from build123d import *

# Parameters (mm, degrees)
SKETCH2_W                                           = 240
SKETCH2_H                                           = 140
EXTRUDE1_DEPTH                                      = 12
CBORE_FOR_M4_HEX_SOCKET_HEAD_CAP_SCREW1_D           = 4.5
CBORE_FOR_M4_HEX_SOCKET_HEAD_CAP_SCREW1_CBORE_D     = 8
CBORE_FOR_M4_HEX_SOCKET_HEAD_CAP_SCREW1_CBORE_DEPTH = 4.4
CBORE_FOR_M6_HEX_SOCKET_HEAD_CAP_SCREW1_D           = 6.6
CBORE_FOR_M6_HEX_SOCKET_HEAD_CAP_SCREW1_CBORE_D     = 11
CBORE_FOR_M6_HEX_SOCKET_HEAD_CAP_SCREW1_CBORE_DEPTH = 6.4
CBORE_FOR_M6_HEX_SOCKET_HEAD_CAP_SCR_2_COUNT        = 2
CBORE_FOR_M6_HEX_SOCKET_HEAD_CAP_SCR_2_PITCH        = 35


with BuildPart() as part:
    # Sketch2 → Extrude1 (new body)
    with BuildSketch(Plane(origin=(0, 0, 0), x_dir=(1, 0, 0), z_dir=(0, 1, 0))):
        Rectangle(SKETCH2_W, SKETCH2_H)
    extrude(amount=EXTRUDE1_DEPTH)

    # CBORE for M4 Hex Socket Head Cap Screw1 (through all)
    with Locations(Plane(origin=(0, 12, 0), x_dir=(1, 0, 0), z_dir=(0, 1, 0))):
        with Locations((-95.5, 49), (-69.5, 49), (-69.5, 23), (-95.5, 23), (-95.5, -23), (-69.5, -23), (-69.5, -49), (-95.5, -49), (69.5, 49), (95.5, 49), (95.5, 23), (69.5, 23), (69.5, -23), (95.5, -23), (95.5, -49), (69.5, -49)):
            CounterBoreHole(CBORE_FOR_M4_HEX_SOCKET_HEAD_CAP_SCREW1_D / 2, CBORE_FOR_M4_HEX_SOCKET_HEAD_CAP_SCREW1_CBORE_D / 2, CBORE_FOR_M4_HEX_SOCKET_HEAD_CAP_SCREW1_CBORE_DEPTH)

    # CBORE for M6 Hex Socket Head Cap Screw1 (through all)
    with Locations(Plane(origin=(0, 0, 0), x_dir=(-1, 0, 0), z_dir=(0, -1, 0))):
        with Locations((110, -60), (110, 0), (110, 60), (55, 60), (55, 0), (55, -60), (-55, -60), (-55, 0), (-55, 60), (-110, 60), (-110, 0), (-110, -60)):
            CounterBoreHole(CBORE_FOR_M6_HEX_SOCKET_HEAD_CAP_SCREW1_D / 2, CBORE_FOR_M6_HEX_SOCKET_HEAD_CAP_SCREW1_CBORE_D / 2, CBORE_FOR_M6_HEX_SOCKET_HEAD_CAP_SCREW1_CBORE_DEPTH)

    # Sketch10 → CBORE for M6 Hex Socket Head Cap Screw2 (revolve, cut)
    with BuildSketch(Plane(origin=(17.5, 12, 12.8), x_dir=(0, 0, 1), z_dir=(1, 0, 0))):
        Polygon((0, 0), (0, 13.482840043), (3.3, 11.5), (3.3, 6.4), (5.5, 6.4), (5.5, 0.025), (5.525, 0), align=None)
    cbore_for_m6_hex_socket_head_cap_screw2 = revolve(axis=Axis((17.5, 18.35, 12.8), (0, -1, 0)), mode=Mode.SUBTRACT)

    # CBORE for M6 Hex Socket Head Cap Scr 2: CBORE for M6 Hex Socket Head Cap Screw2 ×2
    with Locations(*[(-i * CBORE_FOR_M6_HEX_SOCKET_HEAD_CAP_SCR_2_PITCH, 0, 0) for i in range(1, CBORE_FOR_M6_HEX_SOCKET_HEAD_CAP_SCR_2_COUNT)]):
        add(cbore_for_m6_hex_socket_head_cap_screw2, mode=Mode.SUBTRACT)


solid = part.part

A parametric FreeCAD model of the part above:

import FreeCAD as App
import Part
import Sketcher
from FreeCAD import Vector
Q = App.Units.Quantity


def add_polygon(sketch, points):
    """Adds a closed chain of lines whose ends are joined by coincident constraints."""
    first, n = sketch.GeometryCount, len(points)
    for a, b in zip(points, points[1:] + points[:1]):
        sketch.addGeometry(Part.LineSegment(App.Vector(*a, 0), App.Vector(*b, 0)), False)
    for i in range(n):
        sketch.addConstraint(Sketcher.Constraint("Coincident", first + i, 2, first + (i + 1) % n, 1))

doc = App.newDocument("Part")
body = doc.addObject("PartDesign::Body", "Body")

# Sketch on XZ plane
sketch1 = doc.addObject("Sketcher::SketchObject", "Sketch")
body.addObject(sketch1)
sketch1.AttachmentSupport = (doc.XZ_Plane, [""])
sketch1.MapMode = "FlatFace"
add_polygon(sketch1, [(-120, -70), (-120, 70), (120, 70), (120, -70)])  # lines 0-3
sketch1.addConstraint(Sketcher.Constraint("Vertical", 0))
sketch1.addConstraint(Sketcher.Constraint("Horizontal", 1))
sketch1.addConstraint(Sketcher.Constraint("Vertical", 2))
sketch1.addConstraint(Sketcher.Constraint("Horizontal", 3))
sketch1.addConstraint(Sketcher.Constraint("Symmetric", 0, 2, 2, 2, -1, 1))
sketch1.addConstraint(Sketcher.Constraint("DistanceX", 1, 1, 1, 2, Q("240 mm")))
sketch1.addConstraint(Sketcher.Constraint("DistanceY", 0, 1, 0, 2, Q("140 mm")))
pad1 = doc.addObject("PartDesign::Pad", "Pad")
body.addObject(pad1)
pad1.Profile = sketch1
pad1.Length = 12
pad1.Reversed = True

# Sketch on XZ plane
sketch2 = doc.addObject("Sketcher::SketchObject", "Sketch001")
body.addObject(sketch2)
sketch2.AttachmentSupport = (doc.XZ_Plane, [""])
sketch2.MapMode = "FlatFace"
sketch2.AttachmentOffset = App.Placement(Vector(0, 0, -12), App.Rotation())
sketch2.addGeometry(Part.Circle(Vector(-95.5, -49, 0), Vector(0, 0, 1), 2.25), False)
sketch2.addGeometry(Part.Circle(Vector(-69.5, -49, 0), Vector(0, 0, 1), 2.25), False)
sketch2.addGeometry(Part.Circle(Vector(-69.5, -23, 0), Vector(0, 0, 1), 2.25), False)
sketch2.addGeometry(Part.Circle(Vector(-95.5, -23, 0), Vector(0, 0, 1), 2.25), False)
sketch2.addGeometry(Part.Circle(Vector(-95.5, 23, 0), Vector(0, 0, 1), 2.25), False)
sketch2.addGeometry(Part.Circle(Vector(-69.5, 23, 0), Vector(0, 0, 1), 2.25), False)
sketch2.addGeometry(Part.Circle(Vector(-69.5, 49, 0), Vector(0, 0, 1), 2.25), False)
sketch2.addGeometry(Part.Circle(Vector(-95.5, 49, 0), Vector(0, 0, 1), 2.25), False)
sketch2.addGeometry(Part.Circle(Vector(69.5, -49, 0), Vector(0, 0, 1), 2.25), False)
sketch2.addGeometry(Part.Circle(Vector(95.5, -49, 0), Vector(0, 0, 1), 2.25), False)
sketch2.addGeometry(Part.Circle(Vector(95.5, -23, 0), Vector(0, 0, 1), 2.25), False)
sketch2.addGeometry(Part.Circle(Vector(69.5, -23, 0), Vector(0, 0, 1), 2.25), False)
sketch2.addGeometry(Part.Circle(Vector(69.5, 23, 0), Vector(0, 0, 1), 2.25), False)
sketch2.addGeometry(Part.Circle(Vector(95.5, 23, 0), Vector(0, 0, 1), 2.25), False)
sketch2.addGeometry(Part.Circle(Vector(95.5, 49, 0), Vector(0, 0, 1), 2.25), False)
sketch2.addGeometry(Part.Circle(Vector(69.5, 49, 0), Vector(0, 0, 1), 2.25), False)
sketch2.addConstraint(Sketcher.Constraint("Equal", 0, 1))
sketch2.addConstraint(Sketcher.Constraint("Equal", 1, 2))
sketch2.addConstraint(Sketcher.Constraint("Equal", 2, 3))
sketch2.addConstraint(Sketcher.Constraint("Equal", 3, 4))
sketch2.addConstraint(Sketcher.Constraint("Equal", 4, 5))
sketch2.addConstraint(Sketcher.Constraint("Equal", 5, 6))
sketch2.addConstraint(Sketcher.Constraint("Equal", 6, 7))
sketch2.addConstraint(Sketcher.Constraint("Equal", 7, 8))
sketch2.addConstraint(Sketcher.Constraint("Equal", 8, 9))
sketch2.addConstraint(Sketcher.Constraint("Equal", 9, 10))
sketch2.addConstraint(Sketcher.Constraint("Equal", 10, 11))
sketch2.addConstraint(Sketcher.Constraint("Equal", 11, 12))
sketch2.addConstraint(Sketcher.Constraint("Equal", 12, 13))
sketch2.addConstraint(Sketcher.Constraint("Equal", 13, 14))
sketch2.addConstraint(Sketcher.Constraint("Equal", 14, 15))
sketch2.addConstraint(Sketcher.Constraint("Symmetric", 6, 3, 8, 3, -1, 1))
sketch2.addConstraint(Sketcher.Constraint("Symmetric", 7, 3, 9, 3, -1, 1))
sketch2.addConstraint(Sketcher.Constraint("Symmetric", 4, 3, 10, 3, -1, 1))
sketch2.addConstraint(Sketcher.Constraint("Symmetric", 5, 3, 11, 3, -1, 1))
sketch2.addConstraint(Sketcher.Constraint("Symmetric", 2, 3, 12, 3, -1, 1))
sketch2.addConstraint(Sketcher.Constraint("Symmetric", 3, 3, 13, 3, -1, 1))
sketch2.addConstraint(Sketcher.Constraint("Symmetric", 0, 3, 14, 3, -1, 1))
sketch2.addConstraint(Sketcher.Constraint("Symmetric", 1, 3, 15, 3, -1, 1))
sketch2.addConstraint(Sketcher.Constraint("Symmetric", 1, 3, 8, 3, -2))
sketch2.addConstraint(Sketcher.Constraint("Symmetric", 0, 3, 9, 3, -2))
sketch2.addConstraint(Sketcher.Constraint("Symmetric", 3, 3, 10, 3, -2))
sketch2.addConstraint(Sketcher.Constraint("Symmetric", 2, 3, 11, 3, -2))
sketch2.addConstraint(Sketcher.Constraint("Horizontal", 0, 3, 1, 3))
sketch2.addConstraint(Sketcher.Constraint("Horizontal", 2, 3, 3, 3))
sketch2.addConstraint(Sketcher.Constraint("Vertical", 1, 3, 2, 3))
sketch2.addConstraint(Sketcher.Constraint("Vertical", 0, 3, 3, 3))
sketch2.addConstraint(Sketcher.Constraint("Diameter", 0, Q("4.5 mm")))
sketch2.addConstraint(Sketcher.Constraint("DistanceY", 0, 3, -1, 1, Q("49 mm")))
sketch2.addConstraint(Sketcher.Constraint("DistanceY", 2, 3, -1, 1, Q("23 mm")))
sketch2.addConstraint(Sketcher.Constraint("DistanceX", 0, 3, 1, 3, Q("26 mm")))
sketch2.addConstraint(Sketcher.Constraint("DistanceX", 1, 3, 8, 3, Q("139 mm")))
doc.recompute()
hole = doc.addObject("PartDesign::Hole", "Hole")
body.addObject(hole)
hole.Profile = sketch2
hole.ThreadType = "None"
hole.Diameter = 4.5
hole.DepthType = "ThroughAll"
hole.HoleCutType = "Counterbore"
hole.HoleCutDiameter = 8
hole.HoleCutDepth = 4.4
hole.Reversed = True

# Sketch on XZ plane
sketch3 = doc.addObject("Sketcher::SketchObject", "Sketch002")
body.addObject(sketch3)
sketch3.AttachmentSupport = (doc.XZ_Plane, [""])
sketch3.MapMode = "FlatFace"
sketch3.addGeometry(Part.Circle(Vector(-110, 60, 0), Vector(0, 0, 1), 3.3), False)
sketch3.addGeometry(Part.Circle(Vector(-110, 0, 0), Vector(0, 0, 1), 3.3), False)
sketch3.addGeometry(Part.Circle(Vector(-110, -60, 0), Vector(0, 0, 1), 3.3), False)
sketch3.addGeometry(Part.Circle(Vector(-55, -60, 0), Vector(0, 0, 1), 3.3), False)
sketch3.addGeometry(Part.Circle(Vector(-55, 0, 0), Vector(0, 0, 1), 3.3), False)
sketch3.addGeometry(Part.Circle(Vector(-55, 60, 0), Vector(0, 0, 1), 3.3), False)
sketch3.addGeometry(Part.Circle(Vector(55, 60, 0), Vector(0, 0, 1), 3.3), False)
sketch3.addGeometry(Part.Circle(Vector(55, 0, 0), Vector(0, 0, 1), 3.3), False)
sketch3.addGeometry(Part.Circle(Vector(55, -60, 0), Vector(0, 0, 1), 3.3), False)
sketch3.addGeometry(Part.Circle(Vector(110, -60, 0), Vector(0, 0, 1), 3.3), False)
sketch3.addGeometry(Part.Circle(Vector(110, 0, 0), Vector(0, 0, 1), 3.3), False)
sketch3.addGeometry(Part.Circle(Vector(110, 60, 0), Vector(0, 0, 1), 3.3), False)
sketch3.addConstraint(Sketcher.Constraint("Equal", 0, 1))
sketch3.addConstraint(Sketcher.Constraint("Equal", 1, 2))
sketch3.addConstraint(Sketcher.Constraint("Equal", 2, 3))
sketch3.addConstraint(Sketcher.Constraint("Equal", 3, 4))
sketch3.addConstraint(Sketcher.Constraint("Equal", 4, 5))
sketch3.addConstraint(Sketcher.Constraint("Equal", 5, 6))
sketch3.addConstraint(Sketcher.Constraint("Equal", 6, 7))
sketch3.addConstraint(Sketcher.Constraint("Equal", 7, 8))
sketch3.addConstraint(Sketcher.Constraint("Equal", 8, 9))
sketch3.addConstraint(Sketcher.Constraint("Equal", 9, 10))
sketch3.addConstraint(Sketcher.Constraint("Equal", 10, 11))
sketch3.addConstraint(Sketcher.Constraint("Symmetric", 3, 3, 6, 3, -1, 1))
sketch3.addConstraint(Sketcher.Constraint("Symmetric", 4, 3, 7, 3, -1, 1))
sketch3.addConstraint(Sketcher.Constraint("Symmetric", 5, 3, 8, 3, -1, 1))
sketch3.addConstraint(Sketcher.Constraint("Symmetric", 0, 3, 9, 3, -1, 1))
sketch3.addConstraint(Sketcher.Constraint("Symmetric", 1, 3, 10, 3, -1, 1))
sketch3.addConstraint(Sketcher.Constraint("Symmetric", 2, 3, 11, 3, -1, 1))
sketch3.addConstraint(Sketcher.Constraint("Symmetric", 5, 3, 6, 3, -2))
sketch3.addConstraint(Sketcher.Constraint("Symmetric", 2, 3, 9, 3, -2))
sketch3.addConstraint(Sketcher.Constraint("PointOnObject", 1, 3, -1))
sketch3.addConstraint(Sketcher.Constraint("PointOnObject", 4, 3, -1))
sketch3.addConstraint(Sketcher.Constraint("Horizontal", 2, 3, 3, 3))
sketch3.addConstraint(Sketcher.Constraint("Vertical", 0, 3, 1, 3))
sketch3.addConstraint(Sketcher.Constraint("Vertical", 3, 3, 4, 3))
sketch3.addConstraint(Sketcher.Constraint("Diameter", 0, Q("6.6 mm")))
sketch3.addConstraint(Sketcher.Constraint("DistanceX", 0, 3, -1, 1, Q("110 mm")))
sketch3.addConstraint(Sketcher.Constraint("DistanceY", -1, 1, 0, 3, Q("60 mm")))
sketch3.addConstraint(Sketcher.Constraint("DistanceX", 3, 3, -1, 1, Q("55 mm")))
doc.recompute()
hole2 = doc.addObject("PartDesign::Hole", "Hole001")
body.addObject(hole2)
hole2.Profile = sketch3
hole2.ThreadType = "None"
hole2.Diameter = 6.6
hole2.DepthType = "ThroughAll"
hole2.HoleCutType = "Counterbore"
hole2.HoleCutDiameter = 11
hole2.HoleCutDepth = 6.4

# Sketch on YZ plane
sketch4 = doc.addObject("Sketcher::SketchObject", "Sketch003")
body.addObject(sketch4)
sketch4.AttachmentSupport = (doc.YZ_Plane, [""])
sketch4.MapMode = "FlatFace"
sketch4.AttachmentOffset = App.Placement(Vector(0, 0, 17.5), App.Rotation())
add_polygon(sketch4, [(-1.48284, 12.8), (12, 12.8), (12, 18.325), (11.975, 18.3), (5.6, 18.3), (5.6, 16.1), (0.5, 16.1)])  # lines 0-6
sketch4.addGeometry(Part.LineSegment(Vector(12, 12.8, 0), Vector(-1.48284, 12.8, 0)), True)  # axis
sketch4.addConstraint(Sketcher.Constraint("Horizontal", 0))
sketch4.addConstraint(Sketcher.Constraint("Vertical", 1))
sketch4.addConstraint(Sketcher.Constraint("Horizontal", 3))
sketch4.addConstraint(Sketcher.Constraint("Vertical", 4))
sketch4.addConstraint(Sketcher.Constraint("Horizontal", 5))
sketch4.addConstraint(Sketcher.Constraint("Horizontal", 7))
sketch4.addConstraint(Sketcher.Constraint("Coincident", 7, 1, 0, 2))
sketch4.addConstraint(Sketcher.Constraint("Equal", 0, 7))
sketch4.addConstraint(Sketcher.Constraint("Angle", 2, Q("-135 deg")))
sketch4.addConstraint(Sketcher.Constraint("Angle", 6, Q("-121 deg")))
sketch4.addConstraint(Sketcher.Constraint("DistanceX", 5, 2, 5, 1, Q("5.1 mm")))
sketch4.addConstraint(Sketcher.Constraint("DistanceY", 4, 2, 4, 1, Q("2.2 mm")))
sketch4.addConstraint(Sketcher.Constraint("DistanceX", -1, 1, 0, 2, Q("12 mm")))
sketch4.addConstraint(Sketcher.Constraint("DistanceY", -1, 1, 0, 2, Q("12.8 mm")))
sketch4.addConstraint(Sketcher.Constraint("DistanceY", -1, 1, 2, 2, Q("18.3 mm")))
sketch4.addConstraint(Sketcher.Constraint("DistanceX", -1, 1, 3, 2, Q("5.6 mm")))
sketch4.addConstraint(Sketcher.Constraint("DistanceX", 3, 2, 3, 1, Q("6.375 mm")))
groove = doc.addObject("PartDesign::Groove", "Groove")
body.addObject(groove)
groove.Profile = sketch4
groove.ReferenceAxis = (sketch4, ["Axis0"])
groove.Angle = 360
doc.recompute()

linearpattern = doc.addObject("PartDesign::LinearPattern", "LinearPattern")
body.addObject(linearpattern)
linearpattern.Originals = [groove]
linearpattern.Direction = (doc.X_Axis, [""])
linearpattern.Mode = "offset"
linearpattern.Offset = 35
linearpattern.Occurrences = 2
linearpattern.Reversed = True
body.Tip = linearpattern

doc.recompute()
